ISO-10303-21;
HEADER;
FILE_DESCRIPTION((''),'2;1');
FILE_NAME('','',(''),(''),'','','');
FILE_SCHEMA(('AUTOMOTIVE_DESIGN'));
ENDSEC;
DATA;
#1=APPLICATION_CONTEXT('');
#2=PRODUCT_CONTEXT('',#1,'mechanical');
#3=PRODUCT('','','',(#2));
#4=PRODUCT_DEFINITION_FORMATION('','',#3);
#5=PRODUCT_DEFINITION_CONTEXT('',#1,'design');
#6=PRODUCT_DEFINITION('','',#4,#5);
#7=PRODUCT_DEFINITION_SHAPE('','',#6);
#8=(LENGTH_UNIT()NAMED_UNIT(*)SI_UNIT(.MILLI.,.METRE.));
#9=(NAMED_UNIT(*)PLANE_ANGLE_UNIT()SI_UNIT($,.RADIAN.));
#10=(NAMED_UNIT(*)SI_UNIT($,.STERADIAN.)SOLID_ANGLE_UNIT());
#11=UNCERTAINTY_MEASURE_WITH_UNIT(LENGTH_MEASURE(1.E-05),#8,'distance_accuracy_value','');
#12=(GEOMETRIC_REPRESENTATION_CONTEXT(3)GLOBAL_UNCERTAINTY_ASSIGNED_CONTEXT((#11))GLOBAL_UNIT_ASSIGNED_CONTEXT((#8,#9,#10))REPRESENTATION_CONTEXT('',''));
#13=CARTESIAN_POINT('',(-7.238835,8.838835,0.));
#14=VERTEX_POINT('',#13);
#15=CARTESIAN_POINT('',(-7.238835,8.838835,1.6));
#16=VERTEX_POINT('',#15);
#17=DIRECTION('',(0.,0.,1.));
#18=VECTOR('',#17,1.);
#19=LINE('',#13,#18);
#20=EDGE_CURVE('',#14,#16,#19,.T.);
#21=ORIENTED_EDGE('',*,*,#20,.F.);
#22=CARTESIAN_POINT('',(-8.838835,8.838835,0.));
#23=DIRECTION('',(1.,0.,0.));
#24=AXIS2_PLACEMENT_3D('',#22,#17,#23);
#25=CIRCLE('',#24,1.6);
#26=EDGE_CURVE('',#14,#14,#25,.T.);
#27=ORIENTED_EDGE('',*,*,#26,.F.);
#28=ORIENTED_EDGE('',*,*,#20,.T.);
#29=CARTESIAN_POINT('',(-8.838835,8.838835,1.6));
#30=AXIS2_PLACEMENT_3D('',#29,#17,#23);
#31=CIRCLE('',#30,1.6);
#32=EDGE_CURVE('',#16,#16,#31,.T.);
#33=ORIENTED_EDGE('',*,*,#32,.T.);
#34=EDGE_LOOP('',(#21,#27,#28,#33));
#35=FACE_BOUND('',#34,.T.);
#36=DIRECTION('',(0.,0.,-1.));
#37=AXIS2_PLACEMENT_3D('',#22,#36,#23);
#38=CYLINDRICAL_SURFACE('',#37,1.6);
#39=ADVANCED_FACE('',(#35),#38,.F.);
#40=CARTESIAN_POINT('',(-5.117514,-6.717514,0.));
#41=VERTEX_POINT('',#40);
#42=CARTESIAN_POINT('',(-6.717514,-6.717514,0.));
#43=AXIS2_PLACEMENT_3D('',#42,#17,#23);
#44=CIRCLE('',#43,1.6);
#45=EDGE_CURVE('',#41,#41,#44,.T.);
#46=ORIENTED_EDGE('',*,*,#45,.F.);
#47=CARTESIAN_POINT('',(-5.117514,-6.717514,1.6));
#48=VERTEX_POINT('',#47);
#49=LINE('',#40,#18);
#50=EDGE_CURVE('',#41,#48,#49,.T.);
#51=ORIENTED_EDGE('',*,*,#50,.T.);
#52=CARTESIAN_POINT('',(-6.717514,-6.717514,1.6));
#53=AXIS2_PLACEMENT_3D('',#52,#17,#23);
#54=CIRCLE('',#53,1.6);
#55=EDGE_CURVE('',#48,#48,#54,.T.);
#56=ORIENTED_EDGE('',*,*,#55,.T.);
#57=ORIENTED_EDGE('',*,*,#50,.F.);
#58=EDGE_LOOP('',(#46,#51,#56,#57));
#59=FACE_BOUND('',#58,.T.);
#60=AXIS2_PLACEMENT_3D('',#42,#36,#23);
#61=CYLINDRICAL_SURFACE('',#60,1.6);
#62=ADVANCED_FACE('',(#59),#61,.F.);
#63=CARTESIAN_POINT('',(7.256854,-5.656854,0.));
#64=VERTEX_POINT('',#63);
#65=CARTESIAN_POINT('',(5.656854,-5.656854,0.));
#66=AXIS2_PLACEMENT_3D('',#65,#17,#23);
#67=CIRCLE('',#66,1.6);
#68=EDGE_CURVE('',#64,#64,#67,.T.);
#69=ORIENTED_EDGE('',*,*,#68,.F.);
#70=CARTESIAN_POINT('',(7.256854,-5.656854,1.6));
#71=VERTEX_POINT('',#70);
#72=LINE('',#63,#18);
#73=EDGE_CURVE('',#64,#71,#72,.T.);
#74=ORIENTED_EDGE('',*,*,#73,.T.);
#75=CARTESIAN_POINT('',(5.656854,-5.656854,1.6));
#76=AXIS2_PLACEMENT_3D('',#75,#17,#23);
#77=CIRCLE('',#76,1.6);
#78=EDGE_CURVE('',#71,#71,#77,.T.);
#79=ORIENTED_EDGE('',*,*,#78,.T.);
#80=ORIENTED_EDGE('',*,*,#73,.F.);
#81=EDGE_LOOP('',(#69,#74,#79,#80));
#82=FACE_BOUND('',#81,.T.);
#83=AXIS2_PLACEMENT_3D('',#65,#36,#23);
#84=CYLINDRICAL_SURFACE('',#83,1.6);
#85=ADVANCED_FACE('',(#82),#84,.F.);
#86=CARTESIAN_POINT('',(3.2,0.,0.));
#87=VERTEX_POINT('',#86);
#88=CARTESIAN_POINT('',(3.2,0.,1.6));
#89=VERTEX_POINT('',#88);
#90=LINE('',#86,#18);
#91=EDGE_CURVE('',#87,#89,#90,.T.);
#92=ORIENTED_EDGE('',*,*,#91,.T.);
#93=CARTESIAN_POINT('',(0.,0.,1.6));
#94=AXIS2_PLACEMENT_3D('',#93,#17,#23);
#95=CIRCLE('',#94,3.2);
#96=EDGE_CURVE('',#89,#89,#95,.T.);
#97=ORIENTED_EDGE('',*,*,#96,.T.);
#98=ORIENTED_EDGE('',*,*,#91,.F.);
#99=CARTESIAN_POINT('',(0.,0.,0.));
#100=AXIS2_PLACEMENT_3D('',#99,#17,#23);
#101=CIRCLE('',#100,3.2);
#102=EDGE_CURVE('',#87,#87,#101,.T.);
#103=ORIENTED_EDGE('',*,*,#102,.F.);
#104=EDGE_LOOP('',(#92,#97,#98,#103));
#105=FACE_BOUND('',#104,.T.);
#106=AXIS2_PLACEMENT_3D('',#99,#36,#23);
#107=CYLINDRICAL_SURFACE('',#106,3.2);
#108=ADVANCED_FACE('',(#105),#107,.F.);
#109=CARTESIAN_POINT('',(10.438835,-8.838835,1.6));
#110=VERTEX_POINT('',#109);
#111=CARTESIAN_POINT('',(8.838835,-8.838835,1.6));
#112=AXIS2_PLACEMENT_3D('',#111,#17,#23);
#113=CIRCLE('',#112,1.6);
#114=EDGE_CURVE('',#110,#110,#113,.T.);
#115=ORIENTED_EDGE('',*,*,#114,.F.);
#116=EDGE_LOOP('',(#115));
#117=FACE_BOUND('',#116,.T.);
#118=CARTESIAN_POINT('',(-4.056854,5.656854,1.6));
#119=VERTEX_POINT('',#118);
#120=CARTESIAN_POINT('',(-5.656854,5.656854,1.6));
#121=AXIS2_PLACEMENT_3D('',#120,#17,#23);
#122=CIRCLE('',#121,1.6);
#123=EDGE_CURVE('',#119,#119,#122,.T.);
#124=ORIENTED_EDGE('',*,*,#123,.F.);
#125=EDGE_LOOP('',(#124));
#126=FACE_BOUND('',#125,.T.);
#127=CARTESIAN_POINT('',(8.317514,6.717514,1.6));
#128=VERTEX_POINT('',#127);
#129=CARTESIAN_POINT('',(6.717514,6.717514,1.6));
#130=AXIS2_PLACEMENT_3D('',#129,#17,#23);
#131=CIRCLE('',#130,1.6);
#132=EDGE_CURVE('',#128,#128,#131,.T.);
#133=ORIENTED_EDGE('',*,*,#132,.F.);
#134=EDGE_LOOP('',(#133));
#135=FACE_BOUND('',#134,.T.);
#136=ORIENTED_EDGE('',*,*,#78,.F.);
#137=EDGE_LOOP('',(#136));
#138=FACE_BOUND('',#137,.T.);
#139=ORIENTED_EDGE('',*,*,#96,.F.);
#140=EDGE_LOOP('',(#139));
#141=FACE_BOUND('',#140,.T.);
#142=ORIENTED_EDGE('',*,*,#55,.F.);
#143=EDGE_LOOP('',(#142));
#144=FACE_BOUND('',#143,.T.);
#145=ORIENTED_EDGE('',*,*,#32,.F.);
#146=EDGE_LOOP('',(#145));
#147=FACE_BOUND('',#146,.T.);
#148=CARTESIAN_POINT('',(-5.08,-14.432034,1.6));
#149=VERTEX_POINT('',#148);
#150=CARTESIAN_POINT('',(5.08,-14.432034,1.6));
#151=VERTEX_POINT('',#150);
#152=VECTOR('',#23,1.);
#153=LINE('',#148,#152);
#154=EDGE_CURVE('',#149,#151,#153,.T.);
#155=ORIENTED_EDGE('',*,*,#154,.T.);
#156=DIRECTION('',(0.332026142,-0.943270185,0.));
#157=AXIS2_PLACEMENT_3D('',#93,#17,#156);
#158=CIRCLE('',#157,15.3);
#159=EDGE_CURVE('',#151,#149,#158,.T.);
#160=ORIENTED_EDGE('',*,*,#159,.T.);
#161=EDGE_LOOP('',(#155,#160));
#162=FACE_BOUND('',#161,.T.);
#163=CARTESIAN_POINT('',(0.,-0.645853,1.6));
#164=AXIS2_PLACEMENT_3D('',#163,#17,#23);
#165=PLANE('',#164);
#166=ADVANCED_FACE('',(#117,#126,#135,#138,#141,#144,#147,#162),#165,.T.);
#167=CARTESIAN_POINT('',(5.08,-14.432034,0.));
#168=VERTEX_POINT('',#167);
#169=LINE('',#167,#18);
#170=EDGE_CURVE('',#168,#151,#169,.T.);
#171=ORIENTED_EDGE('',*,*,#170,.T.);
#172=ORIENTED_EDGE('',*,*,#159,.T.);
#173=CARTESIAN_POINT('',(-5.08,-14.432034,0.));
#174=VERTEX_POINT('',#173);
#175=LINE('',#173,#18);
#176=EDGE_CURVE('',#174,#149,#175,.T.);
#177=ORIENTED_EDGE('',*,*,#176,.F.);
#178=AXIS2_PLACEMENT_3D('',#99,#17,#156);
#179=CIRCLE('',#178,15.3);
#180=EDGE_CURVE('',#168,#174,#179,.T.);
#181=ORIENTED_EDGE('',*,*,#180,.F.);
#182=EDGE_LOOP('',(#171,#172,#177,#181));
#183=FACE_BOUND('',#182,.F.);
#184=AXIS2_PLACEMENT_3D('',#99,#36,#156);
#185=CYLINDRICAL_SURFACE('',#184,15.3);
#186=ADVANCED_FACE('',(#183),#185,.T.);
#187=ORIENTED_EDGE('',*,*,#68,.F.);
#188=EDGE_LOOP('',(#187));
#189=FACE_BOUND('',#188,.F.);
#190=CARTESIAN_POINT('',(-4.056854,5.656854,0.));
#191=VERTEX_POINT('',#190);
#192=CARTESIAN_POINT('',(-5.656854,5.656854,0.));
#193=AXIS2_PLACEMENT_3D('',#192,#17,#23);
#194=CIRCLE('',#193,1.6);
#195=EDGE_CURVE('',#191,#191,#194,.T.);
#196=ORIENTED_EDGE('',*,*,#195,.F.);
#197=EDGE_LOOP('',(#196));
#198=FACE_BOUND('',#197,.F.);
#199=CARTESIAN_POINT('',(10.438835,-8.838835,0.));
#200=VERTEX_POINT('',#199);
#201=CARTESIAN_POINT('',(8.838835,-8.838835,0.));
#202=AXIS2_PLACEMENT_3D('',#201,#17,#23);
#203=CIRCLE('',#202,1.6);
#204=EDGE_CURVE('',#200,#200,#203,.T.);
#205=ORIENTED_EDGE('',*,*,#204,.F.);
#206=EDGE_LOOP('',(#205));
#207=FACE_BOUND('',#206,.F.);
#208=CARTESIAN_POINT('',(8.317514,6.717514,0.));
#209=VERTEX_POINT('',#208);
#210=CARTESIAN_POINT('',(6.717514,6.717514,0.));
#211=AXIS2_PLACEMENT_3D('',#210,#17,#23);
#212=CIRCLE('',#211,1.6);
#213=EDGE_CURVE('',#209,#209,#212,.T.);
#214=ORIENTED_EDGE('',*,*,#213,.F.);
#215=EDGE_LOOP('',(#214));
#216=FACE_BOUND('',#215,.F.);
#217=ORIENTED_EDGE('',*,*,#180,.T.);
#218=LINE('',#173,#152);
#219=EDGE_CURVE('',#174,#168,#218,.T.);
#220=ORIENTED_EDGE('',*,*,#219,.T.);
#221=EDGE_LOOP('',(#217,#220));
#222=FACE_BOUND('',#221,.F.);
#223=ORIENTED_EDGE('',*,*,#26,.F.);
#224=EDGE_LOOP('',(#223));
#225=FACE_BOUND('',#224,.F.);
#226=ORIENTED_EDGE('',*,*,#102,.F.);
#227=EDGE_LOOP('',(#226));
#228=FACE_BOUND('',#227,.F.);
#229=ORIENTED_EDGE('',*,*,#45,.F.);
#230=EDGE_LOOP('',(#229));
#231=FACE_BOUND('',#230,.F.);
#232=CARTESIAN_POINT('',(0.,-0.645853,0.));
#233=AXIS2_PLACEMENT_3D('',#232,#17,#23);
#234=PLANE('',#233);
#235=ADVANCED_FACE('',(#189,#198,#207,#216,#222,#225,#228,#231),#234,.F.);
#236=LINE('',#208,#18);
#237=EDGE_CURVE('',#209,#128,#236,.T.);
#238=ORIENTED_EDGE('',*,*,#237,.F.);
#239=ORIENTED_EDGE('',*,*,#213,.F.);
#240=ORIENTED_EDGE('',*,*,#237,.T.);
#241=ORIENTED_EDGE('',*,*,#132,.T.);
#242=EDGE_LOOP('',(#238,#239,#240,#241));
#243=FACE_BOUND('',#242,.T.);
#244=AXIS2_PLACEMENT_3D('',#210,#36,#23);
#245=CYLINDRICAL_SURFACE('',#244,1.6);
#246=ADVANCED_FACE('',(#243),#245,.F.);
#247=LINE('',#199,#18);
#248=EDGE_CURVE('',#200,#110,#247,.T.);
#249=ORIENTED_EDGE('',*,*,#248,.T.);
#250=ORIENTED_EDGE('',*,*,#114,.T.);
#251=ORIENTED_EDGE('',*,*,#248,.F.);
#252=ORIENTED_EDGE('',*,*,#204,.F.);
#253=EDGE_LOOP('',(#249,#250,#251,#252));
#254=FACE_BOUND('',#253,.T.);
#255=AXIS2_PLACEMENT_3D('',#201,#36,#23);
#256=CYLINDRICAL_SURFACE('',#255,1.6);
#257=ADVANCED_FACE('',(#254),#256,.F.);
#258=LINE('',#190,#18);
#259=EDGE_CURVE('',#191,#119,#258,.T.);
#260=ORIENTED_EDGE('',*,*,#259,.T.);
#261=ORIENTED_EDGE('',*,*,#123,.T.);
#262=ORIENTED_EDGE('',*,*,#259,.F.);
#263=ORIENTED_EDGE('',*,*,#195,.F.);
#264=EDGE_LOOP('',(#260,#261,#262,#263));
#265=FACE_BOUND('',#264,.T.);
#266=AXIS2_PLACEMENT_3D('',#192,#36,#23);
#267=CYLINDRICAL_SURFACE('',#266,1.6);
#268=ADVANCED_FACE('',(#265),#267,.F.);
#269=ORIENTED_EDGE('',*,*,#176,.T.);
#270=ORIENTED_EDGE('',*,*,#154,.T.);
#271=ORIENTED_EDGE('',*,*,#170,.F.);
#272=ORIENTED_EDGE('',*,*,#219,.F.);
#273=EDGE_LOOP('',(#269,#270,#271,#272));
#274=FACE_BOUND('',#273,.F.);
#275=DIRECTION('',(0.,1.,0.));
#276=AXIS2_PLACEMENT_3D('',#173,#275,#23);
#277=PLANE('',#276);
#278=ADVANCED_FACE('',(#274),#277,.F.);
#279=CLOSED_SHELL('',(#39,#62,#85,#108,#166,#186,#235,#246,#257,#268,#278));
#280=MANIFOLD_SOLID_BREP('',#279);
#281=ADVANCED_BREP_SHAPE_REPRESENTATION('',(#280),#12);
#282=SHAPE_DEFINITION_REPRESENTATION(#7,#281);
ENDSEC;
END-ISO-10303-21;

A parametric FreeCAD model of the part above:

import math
import FreeCAD as App
import Part
import Sketcher
from FreeCAD import Vector

doc = App.newDocument("Part")
body = doc.addObject("PartDesign::Body", "Body")

sketch1 = doc.addObject("Sketcher::SketchObject", "Sketch")
body.addObject(sketch1)
sketch1.AttachmentSupport = (doc.XY_Plane, [""])
sketch1.MapMode = "FlatFace"
sketch1.addGeometry(Part.LineSegment(Vector(-5.1, -14.4, 0), Vector(5.1, -14.4, 0)), False)
sketch1.addGeometry(Part.ArcOfCircle(Part.Circle(Vector(0, 0, 0), Vector(0, 0, 1), 15.3), math.radians(-71), math.radians(251)), False)
sketch1.addGeometry(Part.Circle(Vector(-6.7, -6.7, 0), Vector(0, 0, 1), 1.6), False)
sketch1.addGeometry(Part.Circle(Vector(8.8, -8.8, 0), Vector(0, 0, 1), 1.6), False)
sketch1.addGeometry(Part.Circle(Vector(5.7, -5.7, 0), Vector(0, 0, 1), 1.6), False)
sketch1.addGeometry(Part.Circle(Vector(-5.7, 5.7, 0), Vector(0, 0, 1), 1.6), False)
sketch1.addGeometry(Part.Circle(Vector(-8.8, 8.8, 0), Vector(0, 0, 1), 1.6), False)
sketch1.addGeometry(Part.Circle(Vector(0, 0, 0), Vector(0, 0, 1), 3.2), False)
sketch1.addGeometry(Part.Circle(Vector(6.7, 6.7, 0), Vector(0, 0, 1), 1.6), False)
sketch1.addConstraint(Sketcher.Constraint("Coincident", 0, 1, 1, 2))
sketch1.addConstraint(Sketcher.Constraint("Coincident", 1, 1, 0, 2))
sketch1.addConstraint(Sketcher.Constraint("Horizontal", 0))
sketch1.addConstraint(Sketcher.Constraint("Coincident", 1, 3, -1, 1))
sketch1.addConstraint(Sketcher.Constraint("Coincident", 7, 3, -1, 1))
sketch1.addConstraint(Sketcher.Constraint("Equal", 2, 3))
sketch1.addConstraint(Sketcher.Constraint("Equal", 3, 4))
sketch1.addConstraint(Sketcher.Constraint("Equal", 4, 5))
sketch1.addConstraint(Sketcher.Constraint("Equal", 5, 6))
sketch1.addConstraint(Sketcher.Constraint("Equal", 6, 8))
sketch1.addConstraint(Sketcher.Constraint("Symmetric", 4, 3, 5, 3, -1, 1))
sketch1.addConstraint(Sketcher.Constraint("Symmetric", 3, 3, 6, 3, -1, 1))
sketch1.addConstraint(Sketcher.Constraint("Symmetric", 2, 3, 8, 3, -1, 1))
sketch1.addConstraint(Sketcher.Constraint("Diameter", 2, 3.2))
sketch1.addConstraint(Sketcher.Constraint("Diameter", 7, 6.4))
sketch1.addConstraint(Sketcher.Constraint("Radius", 1, 15.3))
sketch1.addConstraint(Sketcher.Constraint("DistanceX", 0, 1, 0, 2, 10.16))
sketch1.addConstraint(Sketcher.Constraint("DistanceY", 0, 1, 3, 3, 5.593199))
sketch1.addConstraint(Sketcher.Constraint("DistanceX", 2, 3, 3, 3, 15.556349))
sketch1.addConstraint(Sketcher.Constraint("DistanceY", 3, 3, 2, 3, 2.121321))
sketch1.addConstraint(Sketcher.Constraint("DistanceX", 4, 3, 3, 3, 3.181981))
sketch1.addConstraint(Sketcher.Constraint("DistanceY", 3, 3, 4, 3, 3.181981))
sketch1.addConstraint(Sketcher.Constraint("DistanceX", 2, 3, 5, 3, 1.06066))
pad1 = doc.addObject("PartDesign::Pad", "Pad")
body.addObject(pad1)
pad1.Profile = sketch1
pad1.Length = 1.6

doc.recompute()
